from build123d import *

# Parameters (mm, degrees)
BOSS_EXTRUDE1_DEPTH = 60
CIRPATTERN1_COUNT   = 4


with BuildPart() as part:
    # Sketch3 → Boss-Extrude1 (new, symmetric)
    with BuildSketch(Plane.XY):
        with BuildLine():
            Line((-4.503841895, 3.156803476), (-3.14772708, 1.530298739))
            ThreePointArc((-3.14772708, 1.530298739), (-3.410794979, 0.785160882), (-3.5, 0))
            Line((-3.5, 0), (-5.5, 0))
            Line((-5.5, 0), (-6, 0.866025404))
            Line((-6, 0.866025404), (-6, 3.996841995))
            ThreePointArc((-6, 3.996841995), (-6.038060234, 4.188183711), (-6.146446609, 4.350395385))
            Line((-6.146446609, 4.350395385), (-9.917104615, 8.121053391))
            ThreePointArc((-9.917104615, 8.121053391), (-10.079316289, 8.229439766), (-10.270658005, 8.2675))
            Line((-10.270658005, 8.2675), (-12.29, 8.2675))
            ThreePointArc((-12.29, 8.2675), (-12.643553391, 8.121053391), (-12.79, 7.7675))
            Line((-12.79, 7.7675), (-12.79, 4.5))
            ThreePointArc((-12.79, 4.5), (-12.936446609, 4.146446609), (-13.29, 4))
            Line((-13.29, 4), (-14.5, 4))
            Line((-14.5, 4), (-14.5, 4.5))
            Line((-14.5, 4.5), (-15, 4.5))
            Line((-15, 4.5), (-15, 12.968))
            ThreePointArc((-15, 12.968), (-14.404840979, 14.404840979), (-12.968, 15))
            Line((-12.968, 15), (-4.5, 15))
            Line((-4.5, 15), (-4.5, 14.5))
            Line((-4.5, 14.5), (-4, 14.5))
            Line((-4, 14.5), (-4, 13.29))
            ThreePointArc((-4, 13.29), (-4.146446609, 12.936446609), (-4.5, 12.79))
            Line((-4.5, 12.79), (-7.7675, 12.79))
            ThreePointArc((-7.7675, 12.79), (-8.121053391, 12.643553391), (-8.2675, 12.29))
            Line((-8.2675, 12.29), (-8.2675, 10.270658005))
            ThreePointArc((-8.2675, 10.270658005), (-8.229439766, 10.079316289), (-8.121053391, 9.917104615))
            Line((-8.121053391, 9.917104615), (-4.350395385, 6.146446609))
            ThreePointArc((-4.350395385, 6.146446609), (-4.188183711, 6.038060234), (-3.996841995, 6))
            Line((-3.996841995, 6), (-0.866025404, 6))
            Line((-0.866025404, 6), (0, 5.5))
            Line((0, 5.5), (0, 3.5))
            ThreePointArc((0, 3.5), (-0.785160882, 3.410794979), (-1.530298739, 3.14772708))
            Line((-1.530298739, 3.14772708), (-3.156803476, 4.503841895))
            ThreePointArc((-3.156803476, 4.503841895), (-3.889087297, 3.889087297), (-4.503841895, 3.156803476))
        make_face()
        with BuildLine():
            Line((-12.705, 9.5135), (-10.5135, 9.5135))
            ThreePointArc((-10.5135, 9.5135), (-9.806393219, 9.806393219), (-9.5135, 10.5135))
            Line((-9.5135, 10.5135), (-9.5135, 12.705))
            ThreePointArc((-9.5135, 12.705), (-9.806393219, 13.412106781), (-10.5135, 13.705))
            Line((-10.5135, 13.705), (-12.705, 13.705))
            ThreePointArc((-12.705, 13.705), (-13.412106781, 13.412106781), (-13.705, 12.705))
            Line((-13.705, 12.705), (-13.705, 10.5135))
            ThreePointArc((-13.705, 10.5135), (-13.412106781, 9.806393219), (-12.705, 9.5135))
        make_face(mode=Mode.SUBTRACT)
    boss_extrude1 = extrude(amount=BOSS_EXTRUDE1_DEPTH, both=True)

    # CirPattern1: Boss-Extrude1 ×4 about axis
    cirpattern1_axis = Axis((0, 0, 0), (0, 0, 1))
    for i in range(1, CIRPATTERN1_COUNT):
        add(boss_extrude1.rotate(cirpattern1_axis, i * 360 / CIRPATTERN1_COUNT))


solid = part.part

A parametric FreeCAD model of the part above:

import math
import FreeCAD as App
import Part
import Sketcher
Q = App.Units.Quantity

doc = App.newDocument("Part")
body = doc.addObject("PartDesign::Body", "Body")

# Sketch on XY plane
sketch1 = doc.addObject("Sketcher::SketchObject", "Sketch")
body.addObject(sketch1)
sketch1.AttachmentSupport = (doc.XY_Plane, [""])
sketch1.MapMode = "FlatFace"
sketch1.addGeometry(Part.LineSegment(App.Vector(-3.147727, 1.530299, 0), App.Vector(-4.503842, 3.156803, 0)), False)
sketch1.addGeometry(Part.ArcOfCircle(Part.Circle(App.Vector(0, 0, 0), App.Vector(0, 0, 1), 5.5), math.radians(125.027131), math.radians(144.972869)), False)
sketch1.addGeometry(Part.LineSegment(App.Vector(-3.156803, 4.503842, 0), App.Vector(-1.530299, 3.147727, 0)), False)
sketch1.addGeometry(Part.ArcOfCircle(Part.Circle(App.Vector(0, 0, 0), App.Vector(0, 0, 1), 3.5), math.radians(90), math.radians(115.927163)), False)
sketch1.addGeometry(Part.LineSegment(App.Vector(0, 3.5, 0), App.Vector(0, 5.5, 0)), False)
sketch1.addGeometry(Part.LineSegment(App.Vector(0, 5.5, 0), App.Vector(-0.866025, 6, 0)), False)
sketch1.addGeometry(Part.LineSegment(App.Vector(-0.866025, 6, 0), App.Vector(-3.996842, 6, 0)), False)
sketch1.addGeometry(Part.ArcOfCircle(Part.Circle(App.Vector(-3.996842, 6.5, 0), App.Vector(0, 0, 1), 0.5), math.radians(-135), math.radians(-90)), False)
sketch1.addGeometry(Part.LineSegment(App.Vector(-4.350395, 6.146447, 0), App.Vector(-8.121053, 9.917105, 0)), False)
sketch1.addGeometry(Part.ArcOfCircle(Part.Circle(App.Vector(-7.7675, 10.270658, 0), App.Vector(0, 0, 1), 0.5), math.radians(-180), math.radians(-135)), False)
sketch1.addGeometry(Part.LineSegment(App.Vector(-8.2675, 10.270658, 0), App.Vector(-8.2675, 12.29, 0)), False)
sketch1.addGeometry(Part.ArcOfCircle(Part.Circle(App.Vector(-7.7675, 12.29, 0), App.Vector(0, 0, 1), 0.5), math.radians(90), math.radians(180)), False)
sketch1.addGeometry(Part.LineSegment(App.Vector(-7.7675, 12.79, 0), App.Vector(-4.5, 12.79, 0)), False)
sketch1.addGeometry(Part.ArcOfCircle(Part.Circle(App.Vector(-4.5, 13.29, 0), App.Vector(0, 0, 1), 0.5), math.radians(-90), math.radians(0)), False)
sketch1.addGeometry(Part.LineSegment(App.Vector(-4, 13.29, 0), App.Vector(-4, 14.5, 0)), False)
sketch1.addGeometry(Part.LineSegment(App.Vector(-4, 14.5, 0), App.Vector(-4.5, 14.5, 0)), False)
sketch1.addGeometry(Part.LineSegment(App.Vector(-4.5, 14.5, 0), App.Vector(-4.5, 15, 0)), False)
sketch1.addGeometry(Part.LineSegment(App.Vector(-4.5, 15, 0), App.Vector(-12.968, 15, 0)), False)
sketch1.addGeometry(Part.ArcOfCircle(Part.Circle(App.Vector(-12.968, 12.968, 0), App.Vector(0, 0, 1), 2.032), math.radians(90), math.radians(180)), False)
sketch1.addGeometry(Part.LineSegment(App.Vector(-15, 12.968, 0), App.Vector(-15, 4.5, 0)), False)
sketch1.addGeometry(Part.LineSegment(App.Vector(-15, 4.5, 0), App.Vector(-14.5, 4.5, 0)), False)
sketch1.addGeometry(Part.LineSegment(App.Vector(-14.5, 4.5, 0), App.Vector(-14.5, 4, 0)), False)
sketch1.addGeometry(Part.LineSegment(App.Vector(-14.5, 4, 0), App.Vector(-13.29, 4, 0)), False)
sketch1.addGeometry(Part.ArcOfCircle(Part.Circle(App.Vector(-13.29, 4.5, 0), App.Vector(0, 0, 1), 0.5), math.radians(-90), math.radians(0)), False)
sketch1.addGeometry(Part.LineSegment(App.Vector(-12.79, 4.5, 0), App.Vector(-12.79, 7.7675, 0)), False)
sketch1.addGeometry(Part.ArcOfCircle(Part.Circle(App.Vector(-12.29, 7.7675, 0), App.Vector(0, 0, 1), 0.5), math.radians(90), math.radians(180)), False)
sketch1.addGeometry(Part.LineSegment(App.Vector(-12.29, 8.2675, 0), App.Vector(-10.270658, 8.2675, 0)), False)
sketch1.addGeometry(Part.ArcOfCircle(Part.Circle(App.Vector(-10.270658, 7.7675, 0), App.Vector(0, 0, 1), 0.5), math.radians(45), math.radians(90)), False)
sketch1.addGeometry(Part.LineSegment(App.Vector(-9.917105, 8.121053, 0), App.Vector(-6.146447, 4.350395, 0)), False)
sketch1.addGeometry(Part.ArcOfCircle(Part.Circle(App.Vector(-6.5, 3.996842, 0), App.Vector(0, 0, 1), 0.5), math.radians(0), math.radians(45)), False)
sketch1.addGeometry(Part.LineSegment(App.Vector(-6, 3.996842, 0), App.Vector(-6, 0.866025, 0)), False)
sketch1.addGeometry(Part.LineSegment(App.Vector(-6, 0.866025, 0), App.Vector(-5.5, 0, 0)), False)
sketch1.addGeometry(Part.LineSegment(App.Vector(-5.5, 0, 0), App.Vector(-3.5, 0, 0)), False)
sketch1.addGeometry(Part.ArcOfCircle(Part.Circle(App.Vector(0, 0, 0), App.Vector(0, 0, 1), 3.5), math.radians(154.072837), math.radians(180)), False)
sketch1.addGeometry(Part.ArcOfCircle(Part.Circle(App.Vector(-12.705, 10.5135, 0), App.Vector(0, 0, 1), 1), math.radians(-180), math.radians(-90)), False)
sketch1.addGeometry(Part.LineSegment(App.Vector(-13.705, 10.5135, 0), App.Vector(-13.705, 12.705, 0)), False)
sketch1.addGeometry(Part.ArcOfCircle(Part.Circle(App.Vector(-12.705, 12.705, 0), App.Vector(0, 0, 1), 1), math.radians(90), math.radians(180)), False)
sketch1.addGeometry(Part.LineSegment(App.Vector(-12.705, 13.705, 0), App.Vector(-10.5135, 13.705, 0)), False)
sketch1.addGeometry(Part.ArcOfCircle(Part.Circle(App.Vector(-10.5135, 12.705, 0), App.Vector(0, 0, 1), 1), math.radians(0), math.radians(90)), False)
sketch1.addGeometry(Part.LineSegment(App.Vector(-9.5135, 12.705, 0), App.Vector(-9.5135, 10.5135, 0)), False)
sketch1.addGeometry(Part.ArcOfCircle(Part.Circle(App.Vector(-10.5135, 10.5135, 0), App.Vector(0, 0, 1), 1), math.radians(-90), math.radians(0)), False)
sketch1.addGeometry(Part.LineSegment(App.Vector(-10.5135, 9.5135, 0), App.Vector(-12.705, 9.5135, 0)), False)
sketch1.addConstraint(Sketcher.Constraint("Coincident", 0, 2, 1, 2))
sketch1.addConstraint(Sketcher.Constraint("Coincident", 1, 1, 2, 1))
sketch1.addConstraint(Sketcher.Constraint("Coincident", 2, 2, 3, 2))
sketch1.addConstraint(Sketcher.Constraint("Coincident", 3, 1, 4, 1))
sketch1.addConstraint(Sketcher.Constraint("Coincident", 4, 2, 5, 1))
sketch1.addConstraint(Sketcher.Constraint("Coincident", 5, 2, 6, 1))
sketch1.addConstraint(Sketcher.Constraint("Tangent", 6, 2, 7, 2))
sketch1.addConstraint(Sketcher.Constraint("Tangent", 7, 1, 8, 1))
sketch1.addConstraint(Sketcher.Constraint("Tangent", 8, 2, 9, 2))
sketch1.addConstraint(Sketcher.Constraint("Tangent", 9, 1, 10, 1))
sketch1.addConstraint(Sketcher.Constraint("Tangent", 10, 2, 11, 2))
sketch1.addConstraint(Sketcher.Constraint("Tangent", 11, 1, 12, 1))
sketch1.addConstraint(Sketcher.Constraint("Tangent", 12, 2, 13, 1))
sketch1.addConstraint(Sketcher.Constraint("Tangent", 13, 2, 14, 1))
sketch1.addConstraint(Sketcher.Constraint("Coincident", 14, 2, 15, 1))
sketch1.addConstraint(Sketcher.Constraint("Coincident", 15, 2, 16, 1))
sketch1.addConstraint(Sketcher.Constraint("Coincident", 16, 2, 17, 1))
sketch1.addConstraint(Sketcher.Constraint("Tangent", 17, 2, 18, 1))
sketch1.addConstraint(Sketcher.Constraint("Tangent", 18, 2, 19, 1))
sketch1.addConstraint(Sketcher.Constraint("Coincident", 19, 2, 20, 1))
sketch1.addConstraint(Sketcher.Constraint("Coincident", 20, 2, 21, 1))
sketch1.addConstraint(Sketcher.Constraint("Coincident", 21, 2, 22, 1))
sketch1.addConstraint(Sketcher.Constraint("Tangent", 22, 2, 23, 1))
sketch1.addConstraint(Sketcher.Constraint("Tangent", 23, 2, 24, 1))
sketch1.addConstraint(Sketcher.Constraint("Tangent", 24, 2, 25, 2))
sketch1.addConstraint(Sketcher.Constraint("Tangent", 25, 1, 26, 1))
sketch1.addConstraint(Sketcher.Constraint("Tangent", 26, 2, 27, 2))
sketch1.addConstraint(Sketcher.Constraint("Tangent", 27, 1, 28, 1))
sketch1.addConstraint(Sketcher.Constraint("Tangent", 28, 2, 29, 2))
sketch1.addConstraint(Sketcher.Constraint("Tangent", 29, 1, 30, 1))
sketch1.addConstraint(Sketcher.Constraint("Coincident", 30, 2, 31, 1))
sketch1.addConstraint(Sketcher.Constraint("Coincident", 31, 2, 32, 1))
sketch1.addConstraint(Sketcher.Constraint("Coincident", 32, 2, 33, 2))
sketch1.addConstraint(Sketcher.Constraint("Coincident", 33, 1, 0, 1))
sketch1.addConstraint(Sketcher.Constraint("Tangent", 34, 1, 35, 1))
sketch1.addConstraint(Sketcher.Constraint("Tangent", 35, 2, 36, 2))
sketch1.addConstraint(Sketcher.Constraint("Tangent", 36, 1, 37, 1))
sketch1.addConstraint(Sketcher.Constraint("Tangent", 37, 2, 38, 2))
sketch1.addConstraint(Sketcher.Constraint("Tangent", 38, 1, 39, 1))
sketch1.addConstraint(Sketcher.Constraint("Tangent", 39, 2, 40, 2))
sketch1.addConstraint(Sketcher.Constraint("Tangent", 40, 1, 41, 1))
sketch1.addConstraint(Sketcher.Constraint("Tangent", 41, 2, 34, 2))
sketch1.addConstraint(Sketcher.Constraint("Vertical", 4))
sketch1.addConstraint(Sketcher.Constraint("Horizontal", 6))
sketch1.addConstraint(Sketcher.Constraint("Vertical", 10))
sketch1.addConstraint(Sketcher.Constraint("Horizontal", 12))
sketch1.addConstraint(Sketcher.Constraint("Vertical", 14))
sketch1.addConstraint(Sketcher.Constraint("Horizontal", 15))
sketch1.addConstraint(Sketcher.Constraint("Vertical", 16))
sketch1.addConstraint(Sketcher.Constraint("Horizontal", 17))
sketch1.addConstraint(Sketcher.Constraint("Vertical", 19))
sketch1.addConstraint(Sketcher.Constraint("Horizontal", 20))
sketch1.addConstraint(Sketcher.Constraint("Vertical", 21))
sketch1.addConstraint(Sketcher.Constraint("Horizontal", 22))
sketch1.addConstraint(Sketcher.Constraint("Vertical", 24))
sketch1.addConstraint(Sketcher.Constraint("Horizontal", 26))
sketch1.addConstraint(Sketcher.Constraint("Vertical", 30))
sketch1.addConstraint(Sketcher.Constraint("Horizontal", 32))
sketch1.addConstraint(Sketcher.Constraint("Vertical", 35))
sketch1.addConstraint(Sketcher.Constraint("Horizontal", 37))
sketch1.addConstraint(Sketcher.Constraint("Vertical", 39))
sketch1.addConstraint(Sketcher.Constraint("Horizontal", 41))
sketch1.addConstraint(Sketcher.Constraint("Coincident", 1, 3, -1, 1))
sketch1.addConstraint(Sketcher.Constraint("Coincident", 3, 3, -1, 1))
sketch1.addConstraint(Sketcher.Constraint("Coincident", 33, 3, -1, 1))
sketch1.addConstraint(Sketcher.Constraint("Equal", 7, 9))
sketch1.addConstraint(Sketcher.Constraint("Equal", 9, 11))
sketch1.addConstraint(Sketcher.Constraint("Equal", 11, 13))
sketch1.addConstraint(Sketcher.Constraint("Equal", 13, 23))
sketch1.addConstraint(Sketcher.Constraint("Equal", 23, 25))
sketch1.addConstraint(Sketcher.Constraint("Equal", 25, 27))
sketch1.addConstraint(Sketcher.Constraint("Equal", 27, 29))
sketch1.addConstraint(Sketcher.Constraint("Equal", 3, 33))
sketch1.addConstraint(Sketcher.Constraint("Equal", 34, 36))
sketch1.addConstraint(Sketcher.Constraint("Equal", 36, 38))
sketch1.addConstraint(Sketcher.Constraint("Equal", 38, 40))
sketch1.addConstraint(Sketcher.Constraint("PointOnObject", 3, 1, -2))
sketch1.addConstraint(Sketcher.Constraint("PointOnObject", 31, 2, -1))
sketch1.addConstraint(Sketcher.Constraint("Parallel", 8, 28))
sketch1.addConstraint(Sketcher.Constraint("Horizontal", 23, 3, 19, 2))
sketch1.addConstraint(Sketcher.Constraint("Vertical", 12, 2, 15, 2))
sketch1.addConstraint(Sketcher.Constraint("Equal", 15, 20))
sketch1.addConstraint(Sketcher.Constraint("Equal", 32, 4))
sketch1.addConstraint(Sketcher.Constraint("Equal", 26, 10))
sketch1.addConstraint(Sketcher.Constraint("Equal", 22, 14))
sketch1.addConstraint(Sketcher.Constraint("Equal", 20, 16))
sketch1.addConstraint(Sketcher.Constraint("Equal", 17, 19))
sketch1.addConstraint(Sketcher.Constraint("Equal", 12, 24))
sketch1.addConstraint(Sketcher.Constraint("Equal", 6, 30))
sketch1.addConstraint(Sketcher.Constraint("Equal", 41, 35))
sketch1.addConstraint(Sketcher.Constraint("Equal", 0, 2))
sketch1.addConstraint(Sketcher.Constraint("Equal", 8, 28))
sketch1.addConstraint(Sketcher.Constraint("Equal", 5, 31))
sketch1.addConstraint(Sketcher.Constraint("Radius", 34, 1.0))
sketch1.addConstraint(Sketcher.Constraint("Radius", 1, 5.5))
sketch1.addConstraint(Sketcher.Constraint("Radius", 3, 3.5))
sketch1.addConstraint(Sketcher.Constraint("Radius", 7, 0.5))
sketch1.addConstraint(Sketcher.Constraint("DistanceX", 32, 1, 32, 2, 2.0))
sketch1.addConstraint(Sketcher.Constraint("Angle", 5, Q("150 deg")))
sketch1.addConstraint(Sketcher.Constraint("Angle", 8, Q("135 deg")))
sketch1.addConstraint(Sketcher.Constraint("Distance", 5, 1.0))
sketch1.addConstraint(Sketcher.Constraint("DistanceX", 13, 2, -1, 1, 4.0))
sketch1.addConstraint(Sketcher.Constraint("DistanceY", -1, 1, 16, 2, 15.0))
sketch1.addConstraint(Sketcher.Constraint("Radius", 18, 2.032))
sketch1.addConstraint(Sketcher.Constraint("DistanceX", 22, 1, 22, 2, 1.21))
sketch1.addConstraint(Sketcher.Constraint("Angle", 0, Q("129.82 deg")))
sketch1.addConstraint(Sketcher.Constraint("Angle", 2, Q("-39.82 deg")))
sketch1.addConstraint(Sketcher.Constraint("DistanceX", 12, 1, 12, 2, 3.2675))
sketch1.addConstraint(Sketcher.Constraint("DistanceX", 37, 1, 37, 2, 2.1915))
sketch1.addConstraint(Sketcher.Constraint("DistanceX", 34, 3, -1, 1, 12.705))
sketch1.addConstraint(Sketcher.Constraint("DistanceY", -1, 1, 36, 3, 12.705))
sketch1.addConstraint(Sketcher.Constraint("DistanceX", 0, 2, 7, 3, 0.507))
sketch1.addConstraint(Sketcher.Constraint("DistanceX", 26, 1, 26, 2, 2.019342))
pad1 = doc.addObject("PartDesign::Pad", "Pad")
body.addObject(pad1)
pad1.Profile = sketch1
pad1.Length = 120
pad1.Midplane = True
doc.recompute()

polarpattern = doc.addObject("PartDesign::PolarPattern", "PolarPattern")
body.addObject(polarpattern)
polarpattern.Originals = [pad1]
polarpattern.Axis = (doc.Z_Axis, [""])
polarpattern.Angle = 360
polarpattern.Occurrences = 4
body.Tip = polarpattern

doc.recompute()
